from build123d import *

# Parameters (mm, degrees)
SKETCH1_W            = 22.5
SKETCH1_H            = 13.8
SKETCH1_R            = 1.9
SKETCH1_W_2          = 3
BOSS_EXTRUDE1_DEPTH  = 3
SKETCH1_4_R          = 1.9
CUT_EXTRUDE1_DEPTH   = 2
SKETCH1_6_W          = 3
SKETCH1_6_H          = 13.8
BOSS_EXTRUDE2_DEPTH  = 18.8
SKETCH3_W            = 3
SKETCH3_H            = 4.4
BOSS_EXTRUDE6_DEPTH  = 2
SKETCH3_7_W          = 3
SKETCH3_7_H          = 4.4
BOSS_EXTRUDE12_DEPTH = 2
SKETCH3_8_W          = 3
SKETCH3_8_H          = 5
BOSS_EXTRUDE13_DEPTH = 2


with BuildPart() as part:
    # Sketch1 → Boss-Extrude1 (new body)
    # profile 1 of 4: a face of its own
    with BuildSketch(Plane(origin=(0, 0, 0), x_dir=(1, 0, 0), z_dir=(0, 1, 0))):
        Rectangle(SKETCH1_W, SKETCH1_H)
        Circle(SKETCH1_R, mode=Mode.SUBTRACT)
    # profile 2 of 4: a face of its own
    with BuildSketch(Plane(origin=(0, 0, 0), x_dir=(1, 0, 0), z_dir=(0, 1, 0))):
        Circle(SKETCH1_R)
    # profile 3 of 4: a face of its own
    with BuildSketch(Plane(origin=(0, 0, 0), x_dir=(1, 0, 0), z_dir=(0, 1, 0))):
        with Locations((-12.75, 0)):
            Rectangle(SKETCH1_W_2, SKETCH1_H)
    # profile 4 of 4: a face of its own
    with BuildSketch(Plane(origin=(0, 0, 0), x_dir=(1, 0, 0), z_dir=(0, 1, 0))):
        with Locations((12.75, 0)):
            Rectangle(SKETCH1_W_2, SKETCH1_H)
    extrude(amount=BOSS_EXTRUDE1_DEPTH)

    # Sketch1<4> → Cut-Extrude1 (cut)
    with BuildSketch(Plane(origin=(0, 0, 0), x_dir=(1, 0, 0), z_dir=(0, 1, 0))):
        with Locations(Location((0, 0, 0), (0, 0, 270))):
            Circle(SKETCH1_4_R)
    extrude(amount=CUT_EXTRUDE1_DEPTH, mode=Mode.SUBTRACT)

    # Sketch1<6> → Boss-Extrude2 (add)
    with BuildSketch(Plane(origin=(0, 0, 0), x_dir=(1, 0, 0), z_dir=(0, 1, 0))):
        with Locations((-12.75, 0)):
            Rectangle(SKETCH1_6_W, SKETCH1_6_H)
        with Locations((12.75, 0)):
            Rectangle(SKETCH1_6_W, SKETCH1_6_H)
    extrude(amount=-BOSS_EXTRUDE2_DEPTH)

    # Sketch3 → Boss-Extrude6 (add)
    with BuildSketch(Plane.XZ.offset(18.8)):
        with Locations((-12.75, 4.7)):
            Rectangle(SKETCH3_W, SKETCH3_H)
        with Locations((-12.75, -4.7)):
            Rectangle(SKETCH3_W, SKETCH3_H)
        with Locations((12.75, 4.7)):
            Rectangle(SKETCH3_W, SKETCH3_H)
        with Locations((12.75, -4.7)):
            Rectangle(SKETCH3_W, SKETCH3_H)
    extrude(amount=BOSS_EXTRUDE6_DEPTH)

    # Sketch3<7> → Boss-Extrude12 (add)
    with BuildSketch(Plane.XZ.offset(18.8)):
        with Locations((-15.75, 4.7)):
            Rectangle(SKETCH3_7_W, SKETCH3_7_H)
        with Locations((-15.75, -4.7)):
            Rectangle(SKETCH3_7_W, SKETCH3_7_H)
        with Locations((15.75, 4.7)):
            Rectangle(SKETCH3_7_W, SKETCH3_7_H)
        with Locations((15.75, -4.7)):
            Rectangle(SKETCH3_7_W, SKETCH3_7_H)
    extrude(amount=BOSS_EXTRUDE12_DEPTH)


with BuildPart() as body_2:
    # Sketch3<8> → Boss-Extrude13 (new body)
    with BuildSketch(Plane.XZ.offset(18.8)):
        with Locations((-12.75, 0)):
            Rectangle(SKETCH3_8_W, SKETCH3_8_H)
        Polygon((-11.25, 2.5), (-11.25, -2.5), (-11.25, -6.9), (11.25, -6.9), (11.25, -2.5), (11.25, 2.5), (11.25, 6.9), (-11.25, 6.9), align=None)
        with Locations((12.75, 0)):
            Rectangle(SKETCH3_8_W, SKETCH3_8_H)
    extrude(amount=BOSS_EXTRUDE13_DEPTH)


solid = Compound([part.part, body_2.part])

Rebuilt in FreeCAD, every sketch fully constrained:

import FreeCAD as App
import Part
import Sketcher


def add_polygon(sketch, points):
    """Adds a closed chain of lines whose ends are joined by coincident constraints."""
    first, n = sketch.GeometryCount, len(points)
    for a, b in zip(points, points[1:] + points[:1]):
        sketch.addGeometry(Part.LineSegment(App.Vector(*a, 0), App.Vector(*b, 0)), False)
    for i in range(n):
        sketch.addConstraint(Sketcher.Constraint("Coincident", first + i, 2, first + (i + 1) % n, 1))

doc = App.newDocument("Part")
params = doc.addObject("Spreadsheet::Sheet", "Params")
for row, (alias, value) in enumerate([
    ("sketch1_width", "28.5 mm"),
    ("sketch1_height", "13.8 mm"),
    ("pad1_length", "3 mm"),
    ("sketch2_diameter", "3.8 mm"),
    ("pocket1_length", "2 mm"),
    ("sketch3_width", "3 mm"),
    ("sketch3_height", "13.8 mm"),
    ("pad2_length", "18.8 mm"),
    ("sketch4_width", "3 mm"),
    ("sketch4_height", "4.4 mm"),
    ("pad3_length", "2 mm"),
    ("sketch5_width", "3 mm"),
    ("sketch5_height", "4.4 mm"),
    ("pad4_length", "2 mm"),
    ("sketch6_width", "3 mm"),
    ("sketch6_height", "5 mm"),
    ("sketch6_width2", "22.5 mm"),
    ("sketch6_height2", "4.4 mm"),
    ("pad5_length", "2 mm"),
], start=1):
    params.set(f"A{row}", alias)
    params.set(f"B{row}", "=" + value)
    params.setAlias(f"B{row}", alias)

body = doc.addObject("PartDesign::Body", "Body")

# Sketch on XZ plane
sketch1 = body.newObject("Sketcher::SketchObject", "Sketch")
sketch1.AttachmentSupport = (doc.getObject("XZ_Plane"), [""])
sketch1.MapMode = "FlatFace"
add_polygon(sketch1, [(14.25, 6.9), (14.25, -6.9), (-14.25, -6.9), (-14.25, 6.9)])  # lines 0-3
sketch1.addConstraint([
    Sketcher.Constraint("Vertical", 0),
    Sketcher.Constraint("Horizontal", 1),
    Sketcher.Constraint("Vertical", 2),
    Sketcher.Constraint("Horizontal", 3),
    Sketcher.Constraint("Symmetric", 0, 2, 2, 2, -1, 1),
    Sketcher.Constraint("DistanceX", 1, 2, 1, 1, 28.5),
    Sketcher.Constraint("DistanceY", 0, 2, 0, 1, 13.8),
])
sketch1.setExpression("Constraints[9]", "Params.sketch1_width")
sketch1.setExpression("Constraints[10]", "Params.sketch1_height")
pad1 = body.newObject("PartDesign::Pad", "Pad")
pad1.Profile = sketch1
pad1.setExpression("Length", "Params.pad1_length")
pad1.Reversed = True

# Sketch on XZ plane
sketch2 = body.newObject("Sketcher::SketchObject", "Sketch001")
sketch2.AttachmentSupport = (doc.getObject("XZ_Plane"), [""])
sketch2.MapMode = "FlatFace"
sketch2.addGeometry(Part.Circle(App.Vector(0, 0, 0), App.Vector(0, 0, 1), 1.9), False)
sketch2.addConstraint([
    Sketcher.Constraint("Coincident", 0, 3, -1, 1),
    Sketcher.Constraint("Diameter", 0, 3.8),
])
sketch2.setExpression("Constraints[1]", "Params.sketch2_diameter")
pocket1 = body.newObject("PartDesign::Pocket", "Pocket")
pocket1.Profile = sketch2
pocket1.setExpression("Length", "Params.pocket1_length")

# Sketch on XZ plane
sketch3 = body.newObject("Sketcher::SketchObject", "Sketch002")
sketch3.AttachmentSupport = (doc.getObject("XZ_Plane"), [""])
sketch3.MapMode = "FlatFace"
add_polygon(sketch3, [(-14.25, -6.9), (-14.25, 6.9), (-11.25, 6.9), (-11.25, -6.9)])  # lines 0-3
add_polygon(sketch3, [(11.25, -6.9), (11.25, 6.9), (14.25, 6.9), (14.25, -6.9)])  # lines 4-7
sketch3.addConstraint([
    Sketcher.Constraint("Vertical", 0),
    Sketcher.Constraint("Horizontal", 1),
    Sketcher.Constraint("Vertical", 2),
    Sketcher.Constraint("Horizontal", 3),
    Sketcher.Constraint("Vertical", 4),
    Sketcher.Constraint("Horizontal", 5),
    Sketcher.Constraint("Vertical", 6),
    Sketcher.Constraint("Horizontal", 7),
    Sketcher.Constraint("Symmetric", 2, 2, 4, 2, -1, 1),
    Sketcher.Constraint("Symmetric", 0, 2, 6, 2, -1, 1),
    Sketcher.Constraint("Horizontal", 1, 2, 4, 2),
    Sketcher.Constraint("DistanceX", 1, 1, 1, 2, 3.0),
    Sketcher.Constraint("DistanceY", 0, 1, 0, 2, 13.8),
    Sketcher.Constraint("DistanceX", 1, 2, 4, 2, 22.5),
])
sketch3.setExpression("Constraints[19]", "Params.sketch3_width")
sketch3.setExpression("Constraints[20]", "Params.sketch3_height")
pad2 = body.newObject("PartDesign::Pad", "Pad001")
pad2.Profile = sketch3
pad2.setExpression("Length", "Params.pad2_length")

# Sketch on XZ plane
sketch4 = body.newObject("Sketcher::SketchObject", "Sketch003")
sketch4.AttachmentSupport = (doc.getObject("XZ_Plane"), [""])
sketch4.MapMode = "FlatFace"
sketch4.AttachmentOffset = App.Placement(App.Vector(0, 0, 18.8), App.Rotation())
add_polygon(sketch4, [(-14.25, 6.9), (-14.25, 2.5), (-11.25, 2.5), (-11.25, 6.9)])  # lines 0-3
add_polygon(sketch4, [(-14.25, -2.5), (-14.25, -6.9), (-11.25, -6.9), (-11.25, -2.5)])  # lines 4-7
add_polygon(sketch4, [(11.25, 6.9), (11.25, 2.5), (14.25, 2.5), (14.25, 6.9)])  # lines 8-11
add_polygon(sketch4, [(11.25, -2.5), (11.25, -6.9), (14.25, -6.9), (14.25, -2.5)])  # lines 12-15
sketch4.addConstraint([
    Sketcher.Constraint("Vertical", 0),
    Sketcher.Constraint("Horizontal", 1),
    Sketcher.Constraint("Vertical", 2),
    Sketcher.Constraint("Horizontal", 3),
    Sketcher.Constraint("Vertical", 4),
    Sketcher.Constraint("Horizontal", 5),
    Sketcher.Constraint("Vertical", 6),
    Sketcher.Constraint("Horizontal", 7),
    Sketcher.Constraint("Vertical", 8),
    Sketcher.Constraint("Horizontal", 9),
    Sketcher.Constraint("Vertical", 10),
    Sketcher.Constraint("Horizontal", 11),
    Sketcher.Constraint("Vertical", 12),
    Sketcher.Constraint("Horizontal", 13),
    Sketcher.Constraint("Vertical", 14),
    Sketcher.Constraint("Horizontal", 15),
    Sketcher.Constraint("Symmetric", 6, 2, 8, 2, -1, 1),
    Sketcher.Constraint("Symmetric", 4, 2, 10, 2, -1, 1),
    Sketcher.Constraint("Symmetric", 2, 2, 12, 2, -1, 1),
    Sketcher.Constraint("Symmetric", 0, 2, 14, 2, -1, 1),
    Sketcher.Constraint("Symmetric", 1, 2, 8, 2, -2),
    Sketcher.Constraint("Symmetric", 3, 2, 10, 2, -2),
    Sketcher.Constraint("DistanceX", 1, 1, 1, 2, 3.0),
    Sketcher.Constraint("DistanceY", 0, 2, 0, 1, 4.4),
    Sketcher.Constraint("DistanceY", 6, 2, 1, 2, 5.0),
    Sketcher.Constraint("DistanceX", 1, 2, 8, 2, 22.5),
])
sketch4.setExpression("Constraints[38]", "Params.sketch4_width")
sketch4.setExpression("Constraints[39]", "Params.sketch4_height")
pad3 = body.newObject("PartDesign::Pad", "Pad002")
pad3.Profile = sketch4
pad3.setExpression("Length", "Params.pad3_length")

# Sketch on XZ plane
sketch5 = body.newObject("Sketcher::SketchObject", "Sketch004")
sketch5.AttachmentSupport = (doc.getObject("XZ_Plane"), [""])
sketch5.MapMode = "FlatFace"
sketch5.AttachmentOffset = App.Placement(App.Vector(0, 0, 18.8), App.Rotation())
add_polygon(sketch5, [(-17.25, 6.9), (-17.25, 2.5), (-14.25, 2.5), (-14.25, 6.9)])  # lines 0-3
add_polygon(sketch5, [(-17.25, -2.5), (-17.25, -6.9), (-14.25, -6.9), (-14.25, -2.5)])  # lines 4-7
add_polygon(sketch5, [(14.25, 6.9), (14.25, 2.5), (17.25, 2.5), (17.25, 6.9)])  # lines 8-11
add_polygon(sketch5, [(14.25, -2.5), (14.25, -6.9), (17.25, -6.9), (17.25, -2.5)])  # lines 12-15
sketch5.addConstraint([
    Sketcher.Constraint("Vertical", 0),
    Sketcher.Constraint("Horizontal", 1),
    Sketcher.Constraint("Vertical", 2),
    Sketcher.Constraint("Horizontal", 3),
    Sketcher.Constraint("Vertical", 4),
    Sketcher.Constraint("Horizontal", 5),
    Sketcher.Constraint("Vertical", 6),
    Sketcher.Constraint("Horizontal", 7),
    Sketcher.Constraint("Vertical", 8),
    Sketcher.Constraint("Horizontal", 9),
    Sketcher.Constraint("Vertical", 10),
    Sketcher.Constraint("Horizontal", 11),
    Sketcher.Constraint("Vertical", 12),
    Sketcher.Constraint("Horizontal", 13),
    Sketcher.Constraint("Vertical", 14),
    Sketcher.Constraint("Horizontal", 15),
    Sketcher.Constraint("Symmetric", 6, 2, 8, 2, -1, 1),
    Sketcher.Constraint("Symmetric", 4, 2, 10, 2, -1, 1),
    Sketcher.Constraint("Symmetric", 2, 2, 12, 2, -1, 1),
    Sketcher.Constraint("Symmetric", 0, 2, 14, 2, -1, 1),
    Sketcher.Constraint("Symmetric", 1, 2, 8, 2, -2),
    Sketcher.Constraint("Symmetric", 3, 2, 10, 2, -2),
    Sketcher.Constraint("DistanceX", 1, 1, 1, 2, 3.0),
    Sketcher.Constraint("DistanceY", 0, 2, 0, 1, 4.4),
    Sketcher.Constraint("DistanceY", 6, 2, 1, 2, 5.0),
    Sketcher.Constraint("DistanceX", 1, 2, 8, 2, 28.5),
])
sketch5.setExpression("Constraints[38]", "Params.sketch5_width")
sketch5.setExpression("Constraints[39]", "Params.sketch5_height")
pad4 = body.newObject("PartDesign::Pad", "Pad003")
pad4.Profile = sketch5
pad4.setExpression("Length", "Params.pad4_length")
body2 = doc.addObject("PartDesign::Body", "Body001")

# Sketch on XZ plane
sketch6 = body2.newObject("Sketcher::SketchObject", "Sketch005")
sketch6.AttachmentSupport = (doc.getObject("XZ_Plane001"), [""])
sketch6.MapMode = "FlatFace"
sketch6.AttachmentOffset = App.Placement(App.Vector(0, 0, 18.8), App.Rotation())
add_polygon(sketch6, [(-14.25, 2.5), (-14.25, -2.5), (-11.25, -2.5), (-11.25, -6.9), (11.25, -6.9), (11.25, -2.5), (14.25, -2.5), (14.25, 2.5), (11.25, 2.5), (11.25, 6.9), (-11.25, 6.9), (-11.25, 2.5)])  # lines 0-11
sketch6.addConstraint([
    Sketcher.Constraint("Vertical", 0),
    Sketcher.Constraint("Horizontal", 1),
    Sketcher.Constraint("Vertical", 2),
    Sketcher.Constraint("Horizontal", 3),
    Sketcher.Constraint("Vertical", 4),
    Sketcher.Constraint("Horizontal", 5),
    Sketcher.Constraint("Vertical", 6),
    Sketcher.Constraint("Horizontal", 7),
    Sketcher.Constraint("Vertical", 8),
    Sketcher.Constraint("Horizontal", 9),
    Sketcher.Constraint("Vertical", 10),
    Sketcher.Constraint("Horizontal", 11),
    Sketcher.Constraint("Symmetric", 0, 2, 6, 2, -1, 1),
    Sketcher.Constraint("Symmetric", 2, 2, 8, 2, -1, 1),
    Sketcher.Constraint("Symmetric", 4, 2, 10, 2, -1, 1),
    Sketcher.Constraint("Symmetric", 1, 2, 4, 2, -2),
    Sketcher.Constraint("DistanceX", 1, 1, 1, 2, 3.0),
    Sketcher.Constraint("DistanceY", 0, 2, 0, 1, 5.0),
    Sketcher.Constraint("DistanceX", 3, 1, 3, 2, 22.5),
    Sketcher.Constraint("DistanceY", 2, 2, 2, 1, 4.4),
])
sketch6.setExpression("Constraints[28]", "Params.sketch6_width")
sketch6.setExpression("Constraints[29]", "Params.sketch6_height")
sketch6.setExpression("Constraints[30]", "Params.sketch6_width2")
sketch6.setExpression("Constraints[31]", "Params.sketch6_height2")
pad5 = body2.newObject("PartDesign::Pad", "Pad004")
pad5.Profile = sketch6
pad5.setExpression("Length", "Params.pad5_length")

doc.recompute()
